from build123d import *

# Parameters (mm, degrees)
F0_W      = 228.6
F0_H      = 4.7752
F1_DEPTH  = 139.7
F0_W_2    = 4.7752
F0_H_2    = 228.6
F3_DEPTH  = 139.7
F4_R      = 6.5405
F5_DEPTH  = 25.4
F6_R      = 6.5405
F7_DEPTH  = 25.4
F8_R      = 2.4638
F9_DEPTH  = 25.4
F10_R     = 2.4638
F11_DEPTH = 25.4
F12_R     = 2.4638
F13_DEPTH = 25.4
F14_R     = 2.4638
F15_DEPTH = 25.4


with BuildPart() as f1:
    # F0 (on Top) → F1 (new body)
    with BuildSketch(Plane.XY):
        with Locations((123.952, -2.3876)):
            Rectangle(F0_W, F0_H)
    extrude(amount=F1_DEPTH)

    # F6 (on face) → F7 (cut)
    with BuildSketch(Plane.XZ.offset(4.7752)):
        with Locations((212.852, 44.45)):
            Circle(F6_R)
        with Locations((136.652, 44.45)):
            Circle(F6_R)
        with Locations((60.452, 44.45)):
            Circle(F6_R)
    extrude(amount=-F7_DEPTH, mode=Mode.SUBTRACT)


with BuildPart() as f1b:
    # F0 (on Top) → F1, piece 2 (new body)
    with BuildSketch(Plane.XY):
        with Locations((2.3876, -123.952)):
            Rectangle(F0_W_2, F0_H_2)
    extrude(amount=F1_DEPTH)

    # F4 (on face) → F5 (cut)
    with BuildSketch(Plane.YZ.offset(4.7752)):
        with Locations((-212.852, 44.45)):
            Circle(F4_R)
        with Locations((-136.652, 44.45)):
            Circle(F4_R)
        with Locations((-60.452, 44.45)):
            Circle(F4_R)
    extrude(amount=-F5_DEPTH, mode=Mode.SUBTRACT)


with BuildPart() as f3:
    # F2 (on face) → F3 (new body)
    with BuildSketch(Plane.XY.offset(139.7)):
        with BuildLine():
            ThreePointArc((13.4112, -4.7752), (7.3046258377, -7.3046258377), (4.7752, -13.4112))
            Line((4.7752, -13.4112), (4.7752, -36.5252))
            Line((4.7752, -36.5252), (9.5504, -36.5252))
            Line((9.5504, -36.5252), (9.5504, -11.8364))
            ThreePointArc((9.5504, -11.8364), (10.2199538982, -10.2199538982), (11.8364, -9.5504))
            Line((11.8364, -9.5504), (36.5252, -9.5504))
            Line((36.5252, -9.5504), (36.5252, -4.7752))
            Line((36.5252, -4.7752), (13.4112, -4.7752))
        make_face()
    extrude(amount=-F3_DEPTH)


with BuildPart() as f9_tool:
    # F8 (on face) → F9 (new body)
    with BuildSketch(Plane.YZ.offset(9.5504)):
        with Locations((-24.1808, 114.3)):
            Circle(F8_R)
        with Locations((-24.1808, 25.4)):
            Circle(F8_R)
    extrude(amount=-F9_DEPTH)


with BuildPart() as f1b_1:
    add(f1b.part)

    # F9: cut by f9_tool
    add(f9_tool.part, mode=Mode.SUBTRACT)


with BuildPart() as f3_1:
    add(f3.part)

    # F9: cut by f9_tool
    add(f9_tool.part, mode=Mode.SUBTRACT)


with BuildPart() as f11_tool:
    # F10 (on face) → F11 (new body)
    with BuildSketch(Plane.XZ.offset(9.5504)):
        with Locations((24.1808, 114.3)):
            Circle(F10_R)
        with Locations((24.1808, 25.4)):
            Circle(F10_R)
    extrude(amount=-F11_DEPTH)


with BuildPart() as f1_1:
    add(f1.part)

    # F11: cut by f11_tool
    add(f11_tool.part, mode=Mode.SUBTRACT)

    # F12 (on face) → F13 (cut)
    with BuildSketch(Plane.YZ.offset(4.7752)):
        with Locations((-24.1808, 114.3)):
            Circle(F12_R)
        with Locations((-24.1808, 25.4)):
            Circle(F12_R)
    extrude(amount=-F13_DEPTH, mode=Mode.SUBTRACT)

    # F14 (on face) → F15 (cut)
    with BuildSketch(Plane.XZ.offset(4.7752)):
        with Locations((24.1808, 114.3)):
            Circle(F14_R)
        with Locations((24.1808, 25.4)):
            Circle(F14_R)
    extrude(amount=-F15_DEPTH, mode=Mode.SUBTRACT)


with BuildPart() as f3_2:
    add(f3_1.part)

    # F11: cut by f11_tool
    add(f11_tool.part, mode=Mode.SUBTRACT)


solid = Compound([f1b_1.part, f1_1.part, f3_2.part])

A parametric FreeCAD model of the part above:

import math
import FreeCAD as App
import Part
import Sketcher
from FreeCAD import Vector
Q = App.Units.Quantity

doc = App.newDocument("Part")
body = doc.addObject("PartDesign::Body", "Body")

# Sketch on XY plane
sketch1 = doc.addObject("Sketcher::SketchObject", "Sketch")
body.addObject(sketch1)
sketch1.AttachmentSupport = (doc.XY_Plane, [""])
sketch1.MapMode = "FlatFace"
sketch1.addGeometry([
    Part.LineSegment(Vector(9.652, 0, 0), Vector(9.652, -4.7752, 0)),
    Part.LineSegment(Vector(9.652, -4.7752, 0), Vector(238.252, -4.7752, 0)),
    Part.LineSegment(Vector(238.252, -4.7752, 0), Vector(238.252, 0, 0)),
    Part.LineSegment(Vector(238.252, 0, 0), Vector(9.652, 0, 0)),
], False)
sketch1.addConstraint([
    Sketcher.Constraint("Coincident", 0, 2, 1, 1),
    Sketcher.Constraint("Coincident", 1, 2, 2, 1),
    Sketcher.Constraint("Coincident", 2, 2, 3, 1),
    Sketcher.Constraint("Coincident", 3, 2, 0, 1),
    Sketcher.Constraint("Vertical", 0),
    Sketcher.Constraint("Horizontal", 1),
    Sketcher.Constraint("Vertical", 2),
    Sketcher.Constraint("Horizontal", 3),
    Sketcher.Constraint("PointOnObject", 2, 2, -1),
    Sketcher.Constraint("DistanceX", 1, 1, 1, 2, Q("9 in")),
    Sketcher.Constraint("DistanceY", 0, 2, 0, 1, Q("0.188 in")),
    Sketcher.Constraint("DistanceX", -1, 1, 0, 2, Q("0.38 in")),
])
pad1 = doc.addObject("PartDesign::Pad", "Pad")
body.addObject(pad1)
pad1.Profile = sketch1
pad1.Length = Q("5.5 in")

# Sketch on XZ plane
sketch2 = doc.addObject("Sketcher::SketchObject", "Sketch001")
body.addObject(sketch2)
sketch2.AttachmentSupport = (doc.XZ_Plane, [""])
sketch2.MapMode = "FlatFace"
sketch2.AttachmentOffset = App.Placement(Vector(0, 0, 0.188 * 25.4), App.Rotation())
sketch2.addGeometry([
    Part.Circle(Vector(212.852, 44.45, 0), Vector(0, 0, 1), 6.5405),
    Part.Circle(Vector(136.652, 44.45, 0), Vector(0, 0, 1), 6.5405),
    Part.Circle(Vector(60.452, 44.45, 0), Vector(0, 0, 1), 6.5405),
], False)
sketch2.addConstraint([
    Sketcher.Constraint("Equal", 0, 1),
    Sketcher.Constraint("Equal", 1, 2),
    Sketcher.Constraint("Horizontal", 0, 3, 1, 3),
    Sketcher.Constraint("Horizontal", 1, 3, 2, 3),
    Sketcher.Constraint("Diameter", 0, Q("0.515 in")),
    Sketcher.Constraint("DistanceX", 1, 3, 0, 3, Q("3 in")),
    Sketcher.Constraint("DistanceX", 2, 3, 1, 3, Q("3 in")),
    Sketcher.Constraint("DistanceX", -1, 1, 0, 3, Q("8.38 in")),
    Sketcher.Constraint("DistanceY", -1, 1, 0, 3, Q("1.75 in")),
])
pocket1 = doc.addObject("PartDesign::Pocket", "Pocket")
body.addObject(pocket1)
pocket1.Profile = sketch2
pocket1.Length = Q("1 in")
body2 = doc.addObject("PartDesign::Body", "Body001")

# Sketch on XY plane
sketch3 = doc.addObject("Sketcher::SketchObject", "Sketch002")
body2.addObject(sketch3)
sketch3.AttachmentSupport = (doc.getObject("XY_Plane001"), [""])
sketch3.MapMode = "FlatFace"
sketch3.addGeometry([
    Part.LineSegment(Vector(0, -9.652, 0), Vector(0, -238.252, 0)),
    Part.LineSegment(Vector(0, -238.252, 0), Vector(4.7752, -238.252, 0)),
    Part.LineSegment(Vector(4.7752, -238.252, 0), Vector(4.7752, -9.652, 0)),
    Part.LineSegment(Vector(4.7752, -9.652, 0), Vector(0, -9.652, 0)),
], False)
sketch3.addConstraint([
    Sketcher.Constraint("Coincident", 0, 2, 1, 1),
    Sketcher.Constraint("Coincident", 1, 2, 2, 1),
    Sketcher.Constraint("Coincident", 2, 2, 3, 1),
    Sketcher.Constraint("Coincident", 3, 2, 0, 1),
    Sketcher.Constraint("Vertical", 0),
    Sketcher.Constraint("Horizontal", 1),
    Sketcher.Constraint("Vertical", 2),
    Sketcher.Constraint("Horizontal", 3),
    Sketcher.Constraint("PointOnObject", 0, 2, -2),
    Sketcher.Constraint("DistanceY", 0, 2, 0, 1, Q("9 in")),
    Sketcher.Constraint("DistanceX", 1, 1, 1, 2, Q("0.188 in")),
    Sketcher.Constraint("DistanceY", 0, 2, -1, 1, Q("9.38 in")),
])
pad2 = doc.addObject("PartDesign::Pad", "Pad001")
body2.addObject(pad2)
pad2.Profile = sketch3
pad2.Length = Q("5.5 in")

# Sketch on YZ plane
sketch4 = doc.addObject("Sketcher::SketchObject", "Sketch003")
body2.addObject(sketch4)
sketch4.AttachmentSupport = (doc.getObject("YZ_Plane001"), [""])
sketch4.MapMode = "FlatFace"
sketch4.AttachmentOffset = App.Placement(Vector(0, 0, 0.188 * 25.4), App.Rotation())
sketch4.addGeometry([
    Part.Circle(Vector(-212.852, 44.45, 0), Vector(0, 0, 1), 6.5405),
    Part.Circle(Vector(-136.652, 44.45, 0), Vector(0, 0, 1), 6.5405),
    Part.Circle(Vector(-60.452, 44.45, 0), Vector(0, 0, 1), 6.5405),
], False)
sketch4.addConstraint([
    Sketcher.Constraint("Equal", 0, 1),
    Sketcher.Constraint("Equal", 1, 2),
    Sketcher.Constraint("Horizontal", 0, 3, 1, 3),
    Sketcher.Constraint("Horizontal", 1, 3, 2, 3),
    Sketcher.Constraint("Diameter", 0, Q("0.515 in")),
    Sketcher.Constraint("DistanceX", 0, 3, 1, 3, Q("3 in")),
    Sketcher.Constraint("DistanceX", 1, 3, 2, 3, Q("3 in")),
    Sketcher.Constraint("DistanceX", 0, 3, -1, 1, Q("8.38 in")),
    Sketcher.Constraint("DistanceY", -1, 1, 0, 3, Q("1.75 in")),
])
pocket2 = doc.addObject("PartDesign::Pocket", "Pocket001")
body2.addObject(pocket2)
pocket2.Profile = sketch4
pocket2.Length = Q("1 in")
body3 = doc.addObject("PartDesign::Body", "Body002")

# Sketch on XY plane
sketch5 = doc.addObject("Sketcher::SketchObject", "Sketch004")
body3.addObject(sketch5)
sketch5.AttachmentSupport = (doc.getObject("XY_Plane002"), [""])
sketch5.MapMode = "FlatFace"
sketch5.AttachmentOffset = App.Placement(Vector(0, 0, 5.5 * 25.4), App.Rotation())
sketch5.addGeometry([
    Part.ArcOfCircle(Part.Circle(Vector(13.4112, -13.4112, 0), Vector(0, 0, 1), 8.636), math.radians(90), math.radians(180)),  # 0
    Part.LineSegment(Vector(4.7752, -13.4112, 0), Vector(4.7752, -36.5252, 0)),  # 1
    Part.LineSegment(Vector(4.7752, -36.5252, 0), Vector(9.5504, -36.5252, 0)),  # 2
    Part.LineSegment(Vector(9.5504, -36.5252, 0), Vector(9.5504, -11.8364, 0)),  # 3
    Part.ArcOfCircle(Part.Circle(Vector(11.8364, -11.8364, 0), Vector(0, 0, 1), 2.286), math.radians(90), math.radians(180)),  # 4
    Part.LineSegment(Vector(11.8364, -9.5504, 0), Vector(36.5252, -9.5504, 0)),  # 5
    Part.LineSegment(Vector(36.5252, -9.5504, 0), Vector(36.5252, -4.7752, 0)),  # 6
    Part.LineSegment(Vector(36.5252, -4.7752, 0), Vector(13.4112, -4.7752, 0)),  # 7
], False)
sketch5.addConstraint([
    Sketcher.Constraint("Tangent", 0, 2, 1, 1),
    Sketcher.Constraint("Coincident", 1, 2, 2, 1),
    Sketcher.Constraint("Coincident", 2, 2, 3, 1),
    Sketcher.Constraint("Tangent", 3, 2, 4, 2),
    Sketcher.Constraint("Tangent", 4, 1, 5, 1),
    Sketcher.Constraint("Coincident", 5, 2, 6, 1),
    Sketcher.Constraint("Coincident", 6, 2, 7, 1),
    Sketcher.Constraint("Tangent", 7, 2, 0, 1),
    Sketcher.Constraint("Vertical", 1),
    Sketcher.Constraint("Horizontal", 2),
    Sketcher.Constraint("Vertical", 3),
    Sketcher.Constraint("Horizontal", 5),
    Sketcher.Constraint("Vertical", 6),
    Sketcher.Constraint("Horizontal", 7),
    Sketcher.Constraint("Equal", 7, 1),
    Sketcher.Constraint("Equal", 5, 3),
    Sketcher.Constraint("Radius", 0, Q("0.34 in")),
    Sketcher.Constraint("Radius", 4, Q("0.09 in")),
    Sketcher.Constraint("DistanceX", 7, 2, 7, 1, Q("0.91 in")),
    Sketcher.Constraint("DistanceX", 2, 1, 2, 2, Q("0.188 in")),
    Sketcher.Constraint("DistanceX", -1, 1, 0, 3, Q("0.528 in")),
    Sketcher.Constraint("DistanceY", 0, 3, -1, 1, Q("0.528 in")),
])
pad3 = doc.addObject("PartDesign::Pad", "Pad002")
body3.addObject(pad3)
pad3.Profile = sketch5
pad3.Length = Q("5.5 in")
pad3.Reversed = True
body4 = doc.addObject("PartDesign::Body", "Body003")
body4.AllowCompound = True

# Sketch on YZ plane
sketch6 = doc.addObject("Sketcher::SketchObject", "Sketch005")
body4.addObject(sketch6)
sketch6.AttachmentSupport = (doc.getObject("YZ_Plane003"), [""])
sketch6.MapMode = "FlatFace"
sketch6.AttachmentOffset = App.Placement(Vector(0, 0, 0.376 * 25.4), App.Rotation())
sketch6.addGeometry([
    Part.Circle(Vector(-24.1808, 114.3, 0), Vector(0, 0, 1), 2.4638),
    Part.Circle(Vector(-24.1808, 25.4, 0), Vector(0, 0, 1), 2.4638),
], False)
sketch6.addConstraint([
    Sketcher.Constraint("Equal", 0, 1),
    Sketcher.Constraint("Vertical", 0, 3, 1, 3),
    Sketcher.Constraint("Diameter", 0, Q("0.194 in")),
    Sketcher.Constraint("DistanceY", -1, 1, 1, 3, Q("1 in")),
    Sketcher.Constraint("DistanceY", -1, 1, 0, 3, Q("4.5 in")),
    Sketcher.Constraint("DistanceX", 0, 3, -1, 1, Q("0.952 in")),
])
pad4 = doc.addObject("PartDesign::Pad", "Pad003")
body4.addObject(pad4)
pad4.Profile = sketch6
pad4.Length = Q("1 in")
pad4.Reversed = True
doc.recompute()

body5 = doc.addObject("PartDesign::Body", "Body004")
body5.BaseFeature = body4
boolean = doc.addObject("PartDesign::Boolean", "Boolean")
body2.addObject(boolean)
boolean.Type = "Cut"
boolean.addObjects([body5])
doc.recompute()

boolean2 = doc.addObject("PartDesign::Boolean", "Boolean001")
body3.addObject(boolean2)
boolean2.Type = "Cut"
boolean2.addObjects([body4])
body6 = doc.addObject("PartDesign::Body", "Body005")
body6.AllowCompound = True

# Sketch on XZ plane
sketch7 = doc.addObject("Sketcher::SketchObject", "Sketch006")
body6.addObject(sketch7)
sketch7.AttachmentSupport = (doc.getObject("XZ_Plane005"), [""])
sketch7.MapMode = "FlatFace"
sketch7.AttachmentOffset = App.Placement(Vector(0, 0, 0.376 * 25.4), App.Rotation())
sketch7.addGeometry([
    Part.Circle(Vector(24.1808, 114.3, 0), Vector(0, 0, 1), 2.4638),
    Part.Circle(Vector(24.1808, 25.4, 0), Vector(0, 0, 1), 2.4638),
], False)
sketch7.addConstraint([
    Sketcher.Constraint("Equal", 0, 1),
    Sketcher.Constraint("Vertical", 0, 3, 1, 3),
    Sketcher.Constraint("Diameter", 0, Q("0.194 in")),
    Sketcher.Constraint("DistanceY", -1, 1, 1, 3, Q("1 in")),
    Sketcher.Constraint("DistanceY", -1, 1, 0, 3, Q("4.5 in")),
    Sketcher.Constraint("DistanceX", -1, 1, 0, 3, Q("0.952 in")),
])
pad5 = doc.addObject("PartDesign::Pad", "Pad004")
body6.addObject(pad5)
pad5.Profile = sketch7
pad5.Length = Q("1 in")
pad5.Reversed = True
doc.recompute()

body7 = doc.addObject("PartDesign::Body", "Body006")
body7.BaseFeature = body6
boolean3 = doc.addObject("PartDesign::Boolean", "Boolean002")
body.addObject(boolean3)
boolean3.Type = "Cut"
boolean3.addObjects([body7])
doc.recompute()

# Sketch on YZ plane
sketch8 = doc.addObject("Sketcher::SketchObject", "Sketch007")
body.addObject(sketch8)
sketch8.AttachmentSupport = (doc.YZ_Plane, [""])
sketch8.MapMode = "FlatFace"
sketch8.AttachmentOffset = App.Placement(Vector(0, 0, 0.188 * 25.4), App.Rotation())
sketch8.addGeometry([
    Part.Circle(Vector(-24.1808, 114.3, 0), Vector(0, 0, 1), 2.4638),
    Part.Circle(Vector(-24.1808, 25.4, 0), Vector(0, 0, 1), 2.4638),
], False)
sketch8.addConstraint([
    Sketcher.Constraint("Equal", 0, 1),
    Sketcher.Constraint("Vertical", 0, 3, 1, 3),
    Sketcher.Constraint("Diameter", 0, Q("0.194 in")),
    Sketcher.Constraint("DistanceY", -1, 1, 1, 3, Q("1 in")),
    Sketcher.Constraint("DistanceY", -1, 1, 0, 3, Q("4.5 in")),
    Sketcher.Constraint("DistanceX", 0, 3, -1, 1, Q("0.952 in")),
])
pocket3 = doc.addObject("PartDesign::Pocket", "Pocket002")
body.addObject(pocket3)
pocket3.Profile = sketch8
pocket3.Length = Q("1 in")

# Sketch on XZ plane
sketch9 = doc.addObject("Sketcher::SketchObject", "Sketch008")
body.addObject(sketch9)
sketch9.AttachmentSupport = (doc.XZ_Plane, [""])
sketch9.MapMode = "FlatFace"
sketch9.AttachmentOffset = App.Placement(Vector(0, 0, 0.188 * 25.4), App.Rotation())
sketch9.addGeometry([
    Part.Circle(Vector(24.1808, 114.3, 0), Vector(0, 0, 1), 2.4638),
    Part.Circle(Vector(24.1808, 25.4, 0), Vector(0, 0, 1), 2.4638),
], False)
sketch9.addConstraint([
    Sketcher.Constraint("Equal", 0, 1),
    Sketcher.Constraint("Vertical", 0, 3, 1, 3),
    Sketcher.Constraint("Diameter", 0, Q("0.194 in")),
    Sketcher.Constraint("DistanceY", -1, 1, 1, 3, Q("1 in")),
    Sketcher.Constraint("DistanceY", -1, 1, 0, 3, Q("4.5 in")),
    Sketcher.Constraint("DistanceX", -1, 1, 0, 3, Q("0.952 in")),
])
pocket4 = doc.addObject("PartDesign::Pocket", "Pocket003")
body.addObject(pocket4)
pocket4.Profile = sketch9
pocket4.Length = Q("1 in")
doc.recompute()

boolean4 = doc.addObject("PartDesign::Boolean", "Boolean003")
body3.addObject(boolean4)
boolean4.Type = "Cut"
boolean4.addObjects([body6])

doc.recompute()
